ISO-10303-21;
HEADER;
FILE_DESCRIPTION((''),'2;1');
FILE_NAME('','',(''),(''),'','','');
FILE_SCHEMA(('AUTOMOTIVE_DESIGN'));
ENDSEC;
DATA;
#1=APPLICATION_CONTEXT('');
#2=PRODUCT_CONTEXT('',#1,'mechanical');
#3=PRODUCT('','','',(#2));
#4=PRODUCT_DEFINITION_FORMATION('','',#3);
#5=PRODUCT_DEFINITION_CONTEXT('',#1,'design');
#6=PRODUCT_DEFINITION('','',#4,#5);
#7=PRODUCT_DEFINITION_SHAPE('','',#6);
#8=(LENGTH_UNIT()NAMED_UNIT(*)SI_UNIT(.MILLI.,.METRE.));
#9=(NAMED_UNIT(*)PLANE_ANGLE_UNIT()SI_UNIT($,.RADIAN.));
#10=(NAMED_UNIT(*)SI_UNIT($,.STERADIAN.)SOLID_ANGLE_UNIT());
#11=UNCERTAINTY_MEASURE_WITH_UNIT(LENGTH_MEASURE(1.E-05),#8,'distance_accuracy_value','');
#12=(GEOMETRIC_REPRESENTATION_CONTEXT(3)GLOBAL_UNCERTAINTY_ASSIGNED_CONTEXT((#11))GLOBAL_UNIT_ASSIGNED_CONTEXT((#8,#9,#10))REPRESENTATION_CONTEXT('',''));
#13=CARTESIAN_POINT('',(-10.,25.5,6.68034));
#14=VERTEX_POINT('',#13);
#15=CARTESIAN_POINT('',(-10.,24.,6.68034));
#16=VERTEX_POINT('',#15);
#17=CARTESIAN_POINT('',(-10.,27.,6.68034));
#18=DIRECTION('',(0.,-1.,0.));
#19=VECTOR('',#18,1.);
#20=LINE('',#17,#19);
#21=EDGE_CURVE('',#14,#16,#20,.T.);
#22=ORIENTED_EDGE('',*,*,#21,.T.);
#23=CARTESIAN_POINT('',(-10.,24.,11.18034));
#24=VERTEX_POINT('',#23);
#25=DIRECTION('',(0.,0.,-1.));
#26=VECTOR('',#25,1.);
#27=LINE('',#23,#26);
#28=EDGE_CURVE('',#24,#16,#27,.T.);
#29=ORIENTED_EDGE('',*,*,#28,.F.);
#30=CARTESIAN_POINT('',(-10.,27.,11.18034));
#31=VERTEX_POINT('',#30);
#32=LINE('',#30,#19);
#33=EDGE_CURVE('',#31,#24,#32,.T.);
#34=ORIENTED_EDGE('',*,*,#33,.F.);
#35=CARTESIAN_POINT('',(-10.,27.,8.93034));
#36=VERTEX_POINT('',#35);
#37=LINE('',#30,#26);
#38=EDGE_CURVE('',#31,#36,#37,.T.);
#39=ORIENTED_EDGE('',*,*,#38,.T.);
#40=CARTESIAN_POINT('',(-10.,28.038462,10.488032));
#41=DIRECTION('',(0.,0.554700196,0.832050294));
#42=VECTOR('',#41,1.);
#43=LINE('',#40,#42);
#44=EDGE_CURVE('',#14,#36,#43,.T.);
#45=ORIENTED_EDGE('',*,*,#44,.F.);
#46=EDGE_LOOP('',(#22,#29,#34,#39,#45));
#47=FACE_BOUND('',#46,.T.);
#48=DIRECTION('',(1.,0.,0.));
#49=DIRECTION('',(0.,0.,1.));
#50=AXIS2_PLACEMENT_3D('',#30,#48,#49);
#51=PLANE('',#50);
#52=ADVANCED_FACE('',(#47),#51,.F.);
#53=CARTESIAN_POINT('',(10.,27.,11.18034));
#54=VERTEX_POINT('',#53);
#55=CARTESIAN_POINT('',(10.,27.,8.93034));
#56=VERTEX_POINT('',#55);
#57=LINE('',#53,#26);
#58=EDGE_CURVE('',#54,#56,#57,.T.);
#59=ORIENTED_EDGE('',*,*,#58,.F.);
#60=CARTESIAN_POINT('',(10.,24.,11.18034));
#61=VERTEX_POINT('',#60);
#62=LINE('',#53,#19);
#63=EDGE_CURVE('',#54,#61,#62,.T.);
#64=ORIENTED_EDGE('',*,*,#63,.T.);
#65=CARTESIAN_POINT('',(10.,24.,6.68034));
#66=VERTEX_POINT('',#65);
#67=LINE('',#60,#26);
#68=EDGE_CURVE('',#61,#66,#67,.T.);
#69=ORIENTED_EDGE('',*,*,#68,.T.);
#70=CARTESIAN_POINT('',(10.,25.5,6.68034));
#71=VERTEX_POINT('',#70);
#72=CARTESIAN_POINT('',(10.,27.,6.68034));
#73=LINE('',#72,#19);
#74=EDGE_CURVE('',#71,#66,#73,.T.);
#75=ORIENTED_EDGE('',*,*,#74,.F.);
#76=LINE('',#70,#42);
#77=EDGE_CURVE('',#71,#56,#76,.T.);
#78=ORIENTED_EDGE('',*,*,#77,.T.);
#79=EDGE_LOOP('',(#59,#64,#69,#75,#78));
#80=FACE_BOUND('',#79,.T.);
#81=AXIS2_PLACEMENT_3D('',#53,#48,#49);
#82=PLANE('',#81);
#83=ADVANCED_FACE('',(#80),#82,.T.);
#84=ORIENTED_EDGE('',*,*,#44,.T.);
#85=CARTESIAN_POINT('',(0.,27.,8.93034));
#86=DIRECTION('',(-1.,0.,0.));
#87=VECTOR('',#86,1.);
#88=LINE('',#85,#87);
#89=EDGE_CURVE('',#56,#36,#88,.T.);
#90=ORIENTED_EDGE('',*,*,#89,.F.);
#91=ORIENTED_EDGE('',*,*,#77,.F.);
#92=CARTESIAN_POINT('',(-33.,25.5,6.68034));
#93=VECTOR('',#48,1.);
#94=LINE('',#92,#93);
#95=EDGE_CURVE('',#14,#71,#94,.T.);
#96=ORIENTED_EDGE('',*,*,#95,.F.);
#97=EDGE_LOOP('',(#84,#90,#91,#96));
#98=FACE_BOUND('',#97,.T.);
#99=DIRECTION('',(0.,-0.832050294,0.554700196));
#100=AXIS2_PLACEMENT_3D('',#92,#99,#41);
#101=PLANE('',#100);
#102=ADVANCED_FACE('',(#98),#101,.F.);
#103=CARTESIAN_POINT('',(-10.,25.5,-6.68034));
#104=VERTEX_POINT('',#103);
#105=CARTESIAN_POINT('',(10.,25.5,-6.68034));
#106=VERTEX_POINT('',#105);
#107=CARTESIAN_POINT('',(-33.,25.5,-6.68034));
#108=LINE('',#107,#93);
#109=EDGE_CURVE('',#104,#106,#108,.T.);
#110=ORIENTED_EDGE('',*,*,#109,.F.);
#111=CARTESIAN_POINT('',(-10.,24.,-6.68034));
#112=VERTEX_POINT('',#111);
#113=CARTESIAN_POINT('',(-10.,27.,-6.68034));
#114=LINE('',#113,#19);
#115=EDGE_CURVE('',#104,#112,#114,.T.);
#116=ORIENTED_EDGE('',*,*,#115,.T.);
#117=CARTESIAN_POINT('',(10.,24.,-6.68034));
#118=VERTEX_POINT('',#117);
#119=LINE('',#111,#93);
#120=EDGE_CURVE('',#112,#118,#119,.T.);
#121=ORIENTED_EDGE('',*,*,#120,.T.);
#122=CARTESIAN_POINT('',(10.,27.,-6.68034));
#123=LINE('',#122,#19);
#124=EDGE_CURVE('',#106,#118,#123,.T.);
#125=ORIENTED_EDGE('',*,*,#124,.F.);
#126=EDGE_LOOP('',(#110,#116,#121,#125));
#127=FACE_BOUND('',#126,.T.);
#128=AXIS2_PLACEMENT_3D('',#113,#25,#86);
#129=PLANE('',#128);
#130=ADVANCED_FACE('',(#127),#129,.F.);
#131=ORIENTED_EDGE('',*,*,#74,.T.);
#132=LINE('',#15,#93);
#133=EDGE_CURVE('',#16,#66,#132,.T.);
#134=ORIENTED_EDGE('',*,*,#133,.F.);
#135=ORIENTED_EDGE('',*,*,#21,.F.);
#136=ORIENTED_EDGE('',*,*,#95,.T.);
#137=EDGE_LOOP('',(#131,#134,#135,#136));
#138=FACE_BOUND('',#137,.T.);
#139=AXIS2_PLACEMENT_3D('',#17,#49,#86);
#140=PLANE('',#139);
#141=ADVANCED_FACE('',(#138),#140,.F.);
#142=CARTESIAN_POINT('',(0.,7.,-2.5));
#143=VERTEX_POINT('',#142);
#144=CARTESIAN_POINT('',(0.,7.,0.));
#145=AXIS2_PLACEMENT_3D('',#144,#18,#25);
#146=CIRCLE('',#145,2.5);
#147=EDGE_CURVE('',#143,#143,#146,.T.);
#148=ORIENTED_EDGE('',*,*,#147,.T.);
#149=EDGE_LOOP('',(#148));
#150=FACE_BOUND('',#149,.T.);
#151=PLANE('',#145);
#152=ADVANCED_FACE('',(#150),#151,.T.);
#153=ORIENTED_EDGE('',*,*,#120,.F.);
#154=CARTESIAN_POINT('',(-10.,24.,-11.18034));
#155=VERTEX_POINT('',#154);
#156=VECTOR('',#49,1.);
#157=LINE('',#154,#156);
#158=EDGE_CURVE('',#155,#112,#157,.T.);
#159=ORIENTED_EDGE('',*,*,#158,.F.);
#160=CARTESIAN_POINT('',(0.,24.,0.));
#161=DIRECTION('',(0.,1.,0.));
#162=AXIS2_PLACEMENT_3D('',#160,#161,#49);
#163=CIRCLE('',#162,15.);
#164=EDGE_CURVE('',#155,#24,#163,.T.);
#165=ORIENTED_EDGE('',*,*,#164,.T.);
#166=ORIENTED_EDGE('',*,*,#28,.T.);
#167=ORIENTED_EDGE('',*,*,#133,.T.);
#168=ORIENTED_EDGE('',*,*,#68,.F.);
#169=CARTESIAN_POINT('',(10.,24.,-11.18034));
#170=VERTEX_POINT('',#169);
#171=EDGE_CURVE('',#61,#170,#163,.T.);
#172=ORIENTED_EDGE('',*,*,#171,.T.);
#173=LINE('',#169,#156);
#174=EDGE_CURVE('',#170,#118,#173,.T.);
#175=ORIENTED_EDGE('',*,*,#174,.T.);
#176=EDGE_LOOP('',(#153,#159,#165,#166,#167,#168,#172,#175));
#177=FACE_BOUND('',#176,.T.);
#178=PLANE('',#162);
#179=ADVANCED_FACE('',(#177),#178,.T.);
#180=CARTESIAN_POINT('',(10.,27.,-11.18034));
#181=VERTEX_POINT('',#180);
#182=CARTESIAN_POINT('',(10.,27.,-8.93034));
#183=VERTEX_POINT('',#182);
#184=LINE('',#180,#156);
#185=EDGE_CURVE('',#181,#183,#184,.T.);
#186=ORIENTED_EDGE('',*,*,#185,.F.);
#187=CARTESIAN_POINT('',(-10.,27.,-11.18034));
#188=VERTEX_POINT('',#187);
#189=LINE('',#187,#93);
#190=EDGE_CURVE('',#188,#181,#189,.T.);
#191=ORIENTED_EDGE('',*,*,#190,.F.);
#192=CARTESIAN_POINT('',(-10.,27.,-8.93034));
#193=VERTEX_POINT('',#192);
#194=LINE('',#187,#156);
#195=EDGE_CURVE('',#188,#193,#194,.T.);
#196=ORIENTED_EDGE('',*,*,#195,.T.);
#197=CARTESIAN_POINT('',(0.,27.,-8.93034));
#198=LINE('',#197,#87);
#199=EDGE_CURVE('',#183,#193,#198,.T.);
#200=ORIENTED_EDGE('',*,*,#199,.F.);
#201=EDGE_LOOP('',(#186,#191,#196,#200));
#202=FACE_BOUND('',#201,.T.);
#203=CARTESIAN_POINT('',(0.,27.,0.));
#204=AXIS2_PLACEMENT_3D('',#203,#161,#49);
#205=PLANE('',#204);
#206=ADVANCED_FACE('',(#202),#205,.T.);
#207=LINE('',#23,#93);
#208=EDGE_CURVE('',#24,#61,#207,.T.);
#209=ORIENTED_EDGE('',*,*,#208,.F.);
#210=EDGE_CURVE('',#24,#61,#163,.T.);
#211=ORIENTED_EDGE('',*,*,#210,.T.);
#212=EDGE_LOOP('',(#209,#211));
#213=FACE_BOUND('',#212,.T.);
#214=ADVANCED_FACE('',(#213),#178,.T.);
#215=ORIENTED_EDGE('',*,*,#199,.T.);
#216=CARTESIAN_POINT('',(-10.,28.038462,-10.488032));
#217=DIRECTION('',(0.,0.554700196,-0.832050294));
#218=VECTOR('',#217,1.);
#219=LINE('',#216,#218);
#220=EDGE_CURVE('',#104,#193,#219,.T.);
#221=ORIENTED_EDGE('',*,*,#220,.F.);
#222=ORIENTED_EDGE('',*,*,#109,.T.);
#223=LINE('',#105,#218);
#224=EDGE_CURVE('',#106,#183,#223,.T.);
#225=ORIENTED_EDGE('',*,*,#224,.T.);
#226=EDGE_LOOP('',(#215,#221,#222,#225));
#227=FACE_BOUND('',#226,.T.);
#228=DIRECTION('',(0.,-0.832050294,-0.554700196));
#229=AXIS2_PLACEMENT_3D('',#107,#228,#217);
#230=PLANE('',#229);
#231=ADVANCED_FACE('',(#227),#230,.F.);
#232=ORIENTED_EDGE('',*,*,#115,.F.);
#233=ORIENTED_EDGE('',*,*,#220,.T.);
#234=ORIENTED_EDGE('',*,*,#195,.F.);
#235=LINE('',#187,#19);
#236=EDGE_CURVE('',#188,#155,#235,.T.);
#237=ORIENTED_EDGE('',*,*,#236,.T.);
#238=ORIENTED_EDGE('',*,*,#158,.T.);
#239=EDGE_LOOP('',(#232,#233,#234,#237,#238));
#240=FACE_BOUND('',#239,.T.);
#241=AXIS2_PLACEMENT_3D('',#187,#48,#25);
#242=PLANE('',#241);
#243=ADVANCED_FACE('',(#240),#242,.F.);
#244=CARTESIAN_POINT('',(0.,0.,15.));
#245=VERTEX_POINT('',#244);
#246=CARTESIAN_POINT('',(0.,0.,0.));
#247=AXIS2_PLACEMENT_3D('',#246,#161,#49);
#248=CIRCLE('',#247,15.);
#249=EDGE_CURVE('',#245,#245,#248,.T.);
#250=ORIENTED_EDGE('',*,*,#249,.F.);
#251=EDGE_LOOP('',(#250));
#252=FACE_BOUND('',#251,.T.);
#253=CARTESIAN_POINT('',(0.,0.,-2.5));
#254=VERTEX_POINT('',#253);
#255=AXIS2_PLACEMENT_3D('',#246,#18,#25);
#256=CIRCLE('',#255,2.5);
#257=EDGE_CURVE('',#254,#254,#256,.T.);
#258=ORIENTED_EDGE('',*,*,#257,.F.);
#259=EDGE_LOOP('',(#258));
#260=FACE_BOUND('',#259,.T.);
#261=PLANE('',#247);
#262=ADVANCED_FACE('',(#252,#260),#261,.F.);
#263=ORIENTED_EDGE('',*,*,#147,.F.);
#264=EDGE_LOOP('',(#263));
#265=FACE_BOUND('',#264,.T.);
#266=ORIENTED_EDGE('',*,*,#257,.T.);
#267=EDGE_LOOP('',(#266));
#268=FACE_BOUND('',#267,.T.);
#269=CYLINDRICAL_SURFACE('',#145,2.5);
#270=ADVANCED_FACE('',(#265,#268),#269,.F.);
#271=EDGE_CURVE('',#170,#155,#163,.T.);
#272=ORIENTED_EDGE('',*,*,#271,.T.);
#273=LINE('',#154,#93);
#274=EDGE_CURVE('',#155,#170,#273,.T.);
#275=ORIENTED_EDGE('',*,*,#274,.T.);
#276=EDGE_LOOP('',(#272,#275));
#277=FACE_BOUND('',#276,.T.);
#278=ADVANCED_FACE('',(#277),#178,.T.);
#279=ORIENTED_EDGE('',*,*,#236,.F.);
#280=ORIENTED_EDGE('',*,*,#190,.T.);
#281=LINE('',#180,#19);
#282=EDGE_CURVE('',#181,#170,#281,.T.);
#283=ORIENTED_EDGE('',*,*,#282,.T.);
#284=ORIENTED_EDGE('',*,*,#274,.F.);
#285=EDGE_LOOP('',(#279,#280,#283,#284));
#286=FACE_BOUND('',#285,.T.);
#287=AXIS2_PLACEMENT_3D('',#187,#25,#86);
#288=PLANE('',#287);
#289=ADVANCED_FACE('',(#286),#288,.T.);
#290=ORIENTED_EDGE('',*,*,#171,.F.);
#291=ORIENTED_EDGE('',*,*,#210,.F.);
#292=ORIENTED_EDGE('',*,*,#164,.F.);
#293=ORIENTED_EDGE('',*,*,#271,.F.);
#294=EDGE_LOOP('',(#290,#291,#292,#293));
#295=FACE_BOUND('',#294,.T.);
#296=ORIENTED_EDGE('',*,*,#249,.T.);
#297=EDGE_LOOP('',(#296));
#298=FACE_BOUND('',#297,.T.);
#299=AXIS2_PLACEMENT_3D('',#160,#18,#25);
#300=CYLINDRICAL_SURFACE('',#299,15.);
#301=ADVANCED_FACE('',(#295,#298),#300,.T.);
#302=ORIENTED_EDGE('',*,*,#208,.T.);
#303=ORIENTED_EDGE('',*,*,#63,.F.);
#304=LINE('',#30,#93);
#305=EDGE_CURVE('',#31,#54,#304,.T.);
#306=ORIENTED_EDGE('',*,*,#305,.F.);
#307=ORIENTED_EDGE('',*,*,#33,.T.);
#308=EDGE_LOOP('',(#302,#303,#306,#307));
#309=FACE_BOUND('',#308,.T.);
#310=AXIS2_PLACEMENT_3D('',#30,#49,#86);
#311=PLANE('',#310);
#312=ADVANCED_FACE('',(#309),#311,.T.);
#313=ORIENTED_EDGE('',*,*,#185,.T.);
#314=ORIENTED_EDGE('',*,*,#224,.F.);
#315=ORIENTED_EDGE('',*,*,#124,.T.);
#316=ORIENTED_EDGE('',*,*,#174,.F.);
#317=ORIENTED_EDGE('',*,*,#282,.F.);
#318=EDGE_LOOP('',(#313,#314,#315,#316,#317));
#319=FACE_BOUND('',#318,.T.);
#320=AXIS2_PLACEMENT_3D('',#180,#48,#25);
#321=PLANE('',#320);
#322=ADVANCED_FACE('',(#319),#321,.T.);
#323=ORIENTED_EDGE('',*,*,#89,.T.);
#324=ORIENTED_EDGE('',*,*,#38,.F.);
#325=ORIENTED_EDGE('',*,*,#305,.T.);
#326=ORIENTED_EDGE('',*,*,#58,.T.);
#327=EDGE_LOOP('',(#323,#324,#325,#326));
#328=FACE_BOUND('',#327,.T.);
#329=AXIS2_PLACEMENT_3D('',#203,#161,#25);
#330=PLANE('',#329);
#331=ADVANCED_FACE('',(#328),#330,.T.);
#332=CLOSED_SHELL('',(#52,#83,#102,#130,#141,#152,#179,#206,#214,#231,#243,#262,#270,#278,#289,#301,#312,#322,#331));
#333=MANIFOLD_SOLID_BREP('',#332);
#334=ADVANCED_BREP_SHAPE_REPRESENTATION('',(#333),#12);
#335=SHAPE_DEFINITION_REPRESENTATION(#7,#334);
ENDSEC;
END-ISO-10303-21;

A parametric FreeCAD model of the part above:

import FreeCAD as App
import Part
import Sketcher

V = App.Vector


def add_polygon(sketch, points):
    """Adds a closed chain of lines whose ends are joined by coincident constraints."""
    first, n = sketch.GeometryCount, len(points)
    for a, b in zip(points, points[1:] + points[:1]):
        sketch.addGeometry(Part.LineSegment(App.Vector(*a, 0), App.Vector(*b, 0)), False)
    for i in range(n):
        sketch.addConstraint(Sketcher.Constraint("Coincident", first + i, 2, first + (i + 1) % n, 1))

doc = App.newDocument("Part")
body = doc.addObject("PartDesign::Body", "Body")

sketch1 = body.newObject("Sketcher::SketchObject", "Sketch")
sketch1.AttachmentSupport = (doc.getObject("XZ_Plane"), [""])
sketch1.MapMode = "FlatFace"
sketch1.addGeometry(Part.Circle(V(0, 0, 0), V(0, 0, 1), 15), False)
sketch1.addConstraint([
    Sketcher.Constraint("Coincident", 0, 3, -1, 1),
    Sketcher.Constraint("Diameter", 0, 30.0),
])
pad1 = body.newObject("PartDesign::Pad", "Pad")
pad1.Profile = sketch1
pad1.Length = 24
pad1.Reversed = True

sketch2 = body.newObject("Sketcher::SketchObject", "Sketch001")
sketch2.AttachmentSupport = (doc.getObject("XZ_Plane"), [""])
sketch2.MapMode = "FlatFace"
sketch2.AttachmentOffset = App.Placement(V(0, 0, -24), App.Rotation())
add_polygon(sketch2, [(-10, -11.2), (-10, -6.7), (10, -6.7), (10, -11.2)])
sketch2.addConstraint([
    Sketcher.Constraint("Vertical", 0),
    Sketcher.Constraint("Horizontal", 1),
    Sketcher.Constraint("Vertical", 2),
    Sketcher.Constraint("Horizontal", 3),
    Sketcher.Constraint("DistanceX", 1, 1, 1, 2, 20.0),
    Sketcher.Constraint("DistanceY", 0, 1, 0, 2, 4.5),
    Sketcher.Constraint("DistanceX", 0, 2, -1, 1, 10.0),
    Sketcher.Constraint("DistanceY", 0, 2, -1, 1, 6.68034),
])
pad2 = body.newObject("PartDesign::Pad", "Pad001")
pad2.Profile = sketch2
pad2.Length = 3
pad2.Reversed = True

sketch3 = body.newObject("Sketcher::SketchObject", "Sketch002")
sketch3.AttachmentSupport = (doc.getObject("YZ_Plane"), [""])
sketch3.MapMode = "FlatFace"
sketch3.AttachmentOffset = App.Placement(V(0, 0, 10), App.Rotation())
add_polygon(sketch3, [(25.5, -6.7), (27, -8.9), (27, -6.7)])
sketch3.addConstraint([
    Sketcher.Constraint("Vertical", 1),
    Sketcher.Constraint("Horizontal", 2),
    Sketcher.Constraint("DistanceX", 2, 2, 2, 1, 1.5),
    Sketcher.Constraint("DistanceX", -1, 1, 0, 2, 27.0),
    Sketcher.Constraint("DistanceY", 1, 1, 1, 2, 2.25),
    Sketcher.Constraint("DistanceY", 0, 2, -1, 1, 8.93034),
])
pocket1 = body.newObject("PartDesign::Pocket", "Pocket")
pocket1.Profile = sketch3
pocket1.Length = 43
body2 = doc.addObject("PartDesign::Body", "Body001")
doc.recompute()

body2.BaseFeature = body
doc.recompute()

mirroring = doc.addObject("Part::Mirroring", "Mirroring")
mirroring.Source = body
mirroring.Base = V(0, 0, 0)
mirroring.Normal = V(0, 0, 1)
body3 = doc.addObject("PartDesign::Body", "Body002")
body3.BaseFeature = mirroring
boolean = body2.newObject("PartDesign::Boolean", "Boolean")
boolean.Type = "Fuse"
boolean.addObjects([body3])
doc.recompute()

sketch4 = body2.newObject("Sketcher::SketchObject", "Sketch003")
sketch4.AttachmentSupport = (doc.getObject("XZ_Plane001"), [""])
sketch4.MapMode = "FlatFace"
sketch4.addGeometry(Part.Circle(V(0, 0, 0), V(0, 0, 1), 2.5), False)
sketch4.addConstraint([
    Sketcher.Constraint("Coincident", 0, 3, -1, 1),
    Sketcher.Constraint("Diameter", 0, 5.0),
])
pocket2 = body2.newObject("PartDesign::Pocket", "Pocket001")
pocket2.Profile = sketch4
pocket2.Length = 7
mirroring.Visibility = False

doc.recompute()
